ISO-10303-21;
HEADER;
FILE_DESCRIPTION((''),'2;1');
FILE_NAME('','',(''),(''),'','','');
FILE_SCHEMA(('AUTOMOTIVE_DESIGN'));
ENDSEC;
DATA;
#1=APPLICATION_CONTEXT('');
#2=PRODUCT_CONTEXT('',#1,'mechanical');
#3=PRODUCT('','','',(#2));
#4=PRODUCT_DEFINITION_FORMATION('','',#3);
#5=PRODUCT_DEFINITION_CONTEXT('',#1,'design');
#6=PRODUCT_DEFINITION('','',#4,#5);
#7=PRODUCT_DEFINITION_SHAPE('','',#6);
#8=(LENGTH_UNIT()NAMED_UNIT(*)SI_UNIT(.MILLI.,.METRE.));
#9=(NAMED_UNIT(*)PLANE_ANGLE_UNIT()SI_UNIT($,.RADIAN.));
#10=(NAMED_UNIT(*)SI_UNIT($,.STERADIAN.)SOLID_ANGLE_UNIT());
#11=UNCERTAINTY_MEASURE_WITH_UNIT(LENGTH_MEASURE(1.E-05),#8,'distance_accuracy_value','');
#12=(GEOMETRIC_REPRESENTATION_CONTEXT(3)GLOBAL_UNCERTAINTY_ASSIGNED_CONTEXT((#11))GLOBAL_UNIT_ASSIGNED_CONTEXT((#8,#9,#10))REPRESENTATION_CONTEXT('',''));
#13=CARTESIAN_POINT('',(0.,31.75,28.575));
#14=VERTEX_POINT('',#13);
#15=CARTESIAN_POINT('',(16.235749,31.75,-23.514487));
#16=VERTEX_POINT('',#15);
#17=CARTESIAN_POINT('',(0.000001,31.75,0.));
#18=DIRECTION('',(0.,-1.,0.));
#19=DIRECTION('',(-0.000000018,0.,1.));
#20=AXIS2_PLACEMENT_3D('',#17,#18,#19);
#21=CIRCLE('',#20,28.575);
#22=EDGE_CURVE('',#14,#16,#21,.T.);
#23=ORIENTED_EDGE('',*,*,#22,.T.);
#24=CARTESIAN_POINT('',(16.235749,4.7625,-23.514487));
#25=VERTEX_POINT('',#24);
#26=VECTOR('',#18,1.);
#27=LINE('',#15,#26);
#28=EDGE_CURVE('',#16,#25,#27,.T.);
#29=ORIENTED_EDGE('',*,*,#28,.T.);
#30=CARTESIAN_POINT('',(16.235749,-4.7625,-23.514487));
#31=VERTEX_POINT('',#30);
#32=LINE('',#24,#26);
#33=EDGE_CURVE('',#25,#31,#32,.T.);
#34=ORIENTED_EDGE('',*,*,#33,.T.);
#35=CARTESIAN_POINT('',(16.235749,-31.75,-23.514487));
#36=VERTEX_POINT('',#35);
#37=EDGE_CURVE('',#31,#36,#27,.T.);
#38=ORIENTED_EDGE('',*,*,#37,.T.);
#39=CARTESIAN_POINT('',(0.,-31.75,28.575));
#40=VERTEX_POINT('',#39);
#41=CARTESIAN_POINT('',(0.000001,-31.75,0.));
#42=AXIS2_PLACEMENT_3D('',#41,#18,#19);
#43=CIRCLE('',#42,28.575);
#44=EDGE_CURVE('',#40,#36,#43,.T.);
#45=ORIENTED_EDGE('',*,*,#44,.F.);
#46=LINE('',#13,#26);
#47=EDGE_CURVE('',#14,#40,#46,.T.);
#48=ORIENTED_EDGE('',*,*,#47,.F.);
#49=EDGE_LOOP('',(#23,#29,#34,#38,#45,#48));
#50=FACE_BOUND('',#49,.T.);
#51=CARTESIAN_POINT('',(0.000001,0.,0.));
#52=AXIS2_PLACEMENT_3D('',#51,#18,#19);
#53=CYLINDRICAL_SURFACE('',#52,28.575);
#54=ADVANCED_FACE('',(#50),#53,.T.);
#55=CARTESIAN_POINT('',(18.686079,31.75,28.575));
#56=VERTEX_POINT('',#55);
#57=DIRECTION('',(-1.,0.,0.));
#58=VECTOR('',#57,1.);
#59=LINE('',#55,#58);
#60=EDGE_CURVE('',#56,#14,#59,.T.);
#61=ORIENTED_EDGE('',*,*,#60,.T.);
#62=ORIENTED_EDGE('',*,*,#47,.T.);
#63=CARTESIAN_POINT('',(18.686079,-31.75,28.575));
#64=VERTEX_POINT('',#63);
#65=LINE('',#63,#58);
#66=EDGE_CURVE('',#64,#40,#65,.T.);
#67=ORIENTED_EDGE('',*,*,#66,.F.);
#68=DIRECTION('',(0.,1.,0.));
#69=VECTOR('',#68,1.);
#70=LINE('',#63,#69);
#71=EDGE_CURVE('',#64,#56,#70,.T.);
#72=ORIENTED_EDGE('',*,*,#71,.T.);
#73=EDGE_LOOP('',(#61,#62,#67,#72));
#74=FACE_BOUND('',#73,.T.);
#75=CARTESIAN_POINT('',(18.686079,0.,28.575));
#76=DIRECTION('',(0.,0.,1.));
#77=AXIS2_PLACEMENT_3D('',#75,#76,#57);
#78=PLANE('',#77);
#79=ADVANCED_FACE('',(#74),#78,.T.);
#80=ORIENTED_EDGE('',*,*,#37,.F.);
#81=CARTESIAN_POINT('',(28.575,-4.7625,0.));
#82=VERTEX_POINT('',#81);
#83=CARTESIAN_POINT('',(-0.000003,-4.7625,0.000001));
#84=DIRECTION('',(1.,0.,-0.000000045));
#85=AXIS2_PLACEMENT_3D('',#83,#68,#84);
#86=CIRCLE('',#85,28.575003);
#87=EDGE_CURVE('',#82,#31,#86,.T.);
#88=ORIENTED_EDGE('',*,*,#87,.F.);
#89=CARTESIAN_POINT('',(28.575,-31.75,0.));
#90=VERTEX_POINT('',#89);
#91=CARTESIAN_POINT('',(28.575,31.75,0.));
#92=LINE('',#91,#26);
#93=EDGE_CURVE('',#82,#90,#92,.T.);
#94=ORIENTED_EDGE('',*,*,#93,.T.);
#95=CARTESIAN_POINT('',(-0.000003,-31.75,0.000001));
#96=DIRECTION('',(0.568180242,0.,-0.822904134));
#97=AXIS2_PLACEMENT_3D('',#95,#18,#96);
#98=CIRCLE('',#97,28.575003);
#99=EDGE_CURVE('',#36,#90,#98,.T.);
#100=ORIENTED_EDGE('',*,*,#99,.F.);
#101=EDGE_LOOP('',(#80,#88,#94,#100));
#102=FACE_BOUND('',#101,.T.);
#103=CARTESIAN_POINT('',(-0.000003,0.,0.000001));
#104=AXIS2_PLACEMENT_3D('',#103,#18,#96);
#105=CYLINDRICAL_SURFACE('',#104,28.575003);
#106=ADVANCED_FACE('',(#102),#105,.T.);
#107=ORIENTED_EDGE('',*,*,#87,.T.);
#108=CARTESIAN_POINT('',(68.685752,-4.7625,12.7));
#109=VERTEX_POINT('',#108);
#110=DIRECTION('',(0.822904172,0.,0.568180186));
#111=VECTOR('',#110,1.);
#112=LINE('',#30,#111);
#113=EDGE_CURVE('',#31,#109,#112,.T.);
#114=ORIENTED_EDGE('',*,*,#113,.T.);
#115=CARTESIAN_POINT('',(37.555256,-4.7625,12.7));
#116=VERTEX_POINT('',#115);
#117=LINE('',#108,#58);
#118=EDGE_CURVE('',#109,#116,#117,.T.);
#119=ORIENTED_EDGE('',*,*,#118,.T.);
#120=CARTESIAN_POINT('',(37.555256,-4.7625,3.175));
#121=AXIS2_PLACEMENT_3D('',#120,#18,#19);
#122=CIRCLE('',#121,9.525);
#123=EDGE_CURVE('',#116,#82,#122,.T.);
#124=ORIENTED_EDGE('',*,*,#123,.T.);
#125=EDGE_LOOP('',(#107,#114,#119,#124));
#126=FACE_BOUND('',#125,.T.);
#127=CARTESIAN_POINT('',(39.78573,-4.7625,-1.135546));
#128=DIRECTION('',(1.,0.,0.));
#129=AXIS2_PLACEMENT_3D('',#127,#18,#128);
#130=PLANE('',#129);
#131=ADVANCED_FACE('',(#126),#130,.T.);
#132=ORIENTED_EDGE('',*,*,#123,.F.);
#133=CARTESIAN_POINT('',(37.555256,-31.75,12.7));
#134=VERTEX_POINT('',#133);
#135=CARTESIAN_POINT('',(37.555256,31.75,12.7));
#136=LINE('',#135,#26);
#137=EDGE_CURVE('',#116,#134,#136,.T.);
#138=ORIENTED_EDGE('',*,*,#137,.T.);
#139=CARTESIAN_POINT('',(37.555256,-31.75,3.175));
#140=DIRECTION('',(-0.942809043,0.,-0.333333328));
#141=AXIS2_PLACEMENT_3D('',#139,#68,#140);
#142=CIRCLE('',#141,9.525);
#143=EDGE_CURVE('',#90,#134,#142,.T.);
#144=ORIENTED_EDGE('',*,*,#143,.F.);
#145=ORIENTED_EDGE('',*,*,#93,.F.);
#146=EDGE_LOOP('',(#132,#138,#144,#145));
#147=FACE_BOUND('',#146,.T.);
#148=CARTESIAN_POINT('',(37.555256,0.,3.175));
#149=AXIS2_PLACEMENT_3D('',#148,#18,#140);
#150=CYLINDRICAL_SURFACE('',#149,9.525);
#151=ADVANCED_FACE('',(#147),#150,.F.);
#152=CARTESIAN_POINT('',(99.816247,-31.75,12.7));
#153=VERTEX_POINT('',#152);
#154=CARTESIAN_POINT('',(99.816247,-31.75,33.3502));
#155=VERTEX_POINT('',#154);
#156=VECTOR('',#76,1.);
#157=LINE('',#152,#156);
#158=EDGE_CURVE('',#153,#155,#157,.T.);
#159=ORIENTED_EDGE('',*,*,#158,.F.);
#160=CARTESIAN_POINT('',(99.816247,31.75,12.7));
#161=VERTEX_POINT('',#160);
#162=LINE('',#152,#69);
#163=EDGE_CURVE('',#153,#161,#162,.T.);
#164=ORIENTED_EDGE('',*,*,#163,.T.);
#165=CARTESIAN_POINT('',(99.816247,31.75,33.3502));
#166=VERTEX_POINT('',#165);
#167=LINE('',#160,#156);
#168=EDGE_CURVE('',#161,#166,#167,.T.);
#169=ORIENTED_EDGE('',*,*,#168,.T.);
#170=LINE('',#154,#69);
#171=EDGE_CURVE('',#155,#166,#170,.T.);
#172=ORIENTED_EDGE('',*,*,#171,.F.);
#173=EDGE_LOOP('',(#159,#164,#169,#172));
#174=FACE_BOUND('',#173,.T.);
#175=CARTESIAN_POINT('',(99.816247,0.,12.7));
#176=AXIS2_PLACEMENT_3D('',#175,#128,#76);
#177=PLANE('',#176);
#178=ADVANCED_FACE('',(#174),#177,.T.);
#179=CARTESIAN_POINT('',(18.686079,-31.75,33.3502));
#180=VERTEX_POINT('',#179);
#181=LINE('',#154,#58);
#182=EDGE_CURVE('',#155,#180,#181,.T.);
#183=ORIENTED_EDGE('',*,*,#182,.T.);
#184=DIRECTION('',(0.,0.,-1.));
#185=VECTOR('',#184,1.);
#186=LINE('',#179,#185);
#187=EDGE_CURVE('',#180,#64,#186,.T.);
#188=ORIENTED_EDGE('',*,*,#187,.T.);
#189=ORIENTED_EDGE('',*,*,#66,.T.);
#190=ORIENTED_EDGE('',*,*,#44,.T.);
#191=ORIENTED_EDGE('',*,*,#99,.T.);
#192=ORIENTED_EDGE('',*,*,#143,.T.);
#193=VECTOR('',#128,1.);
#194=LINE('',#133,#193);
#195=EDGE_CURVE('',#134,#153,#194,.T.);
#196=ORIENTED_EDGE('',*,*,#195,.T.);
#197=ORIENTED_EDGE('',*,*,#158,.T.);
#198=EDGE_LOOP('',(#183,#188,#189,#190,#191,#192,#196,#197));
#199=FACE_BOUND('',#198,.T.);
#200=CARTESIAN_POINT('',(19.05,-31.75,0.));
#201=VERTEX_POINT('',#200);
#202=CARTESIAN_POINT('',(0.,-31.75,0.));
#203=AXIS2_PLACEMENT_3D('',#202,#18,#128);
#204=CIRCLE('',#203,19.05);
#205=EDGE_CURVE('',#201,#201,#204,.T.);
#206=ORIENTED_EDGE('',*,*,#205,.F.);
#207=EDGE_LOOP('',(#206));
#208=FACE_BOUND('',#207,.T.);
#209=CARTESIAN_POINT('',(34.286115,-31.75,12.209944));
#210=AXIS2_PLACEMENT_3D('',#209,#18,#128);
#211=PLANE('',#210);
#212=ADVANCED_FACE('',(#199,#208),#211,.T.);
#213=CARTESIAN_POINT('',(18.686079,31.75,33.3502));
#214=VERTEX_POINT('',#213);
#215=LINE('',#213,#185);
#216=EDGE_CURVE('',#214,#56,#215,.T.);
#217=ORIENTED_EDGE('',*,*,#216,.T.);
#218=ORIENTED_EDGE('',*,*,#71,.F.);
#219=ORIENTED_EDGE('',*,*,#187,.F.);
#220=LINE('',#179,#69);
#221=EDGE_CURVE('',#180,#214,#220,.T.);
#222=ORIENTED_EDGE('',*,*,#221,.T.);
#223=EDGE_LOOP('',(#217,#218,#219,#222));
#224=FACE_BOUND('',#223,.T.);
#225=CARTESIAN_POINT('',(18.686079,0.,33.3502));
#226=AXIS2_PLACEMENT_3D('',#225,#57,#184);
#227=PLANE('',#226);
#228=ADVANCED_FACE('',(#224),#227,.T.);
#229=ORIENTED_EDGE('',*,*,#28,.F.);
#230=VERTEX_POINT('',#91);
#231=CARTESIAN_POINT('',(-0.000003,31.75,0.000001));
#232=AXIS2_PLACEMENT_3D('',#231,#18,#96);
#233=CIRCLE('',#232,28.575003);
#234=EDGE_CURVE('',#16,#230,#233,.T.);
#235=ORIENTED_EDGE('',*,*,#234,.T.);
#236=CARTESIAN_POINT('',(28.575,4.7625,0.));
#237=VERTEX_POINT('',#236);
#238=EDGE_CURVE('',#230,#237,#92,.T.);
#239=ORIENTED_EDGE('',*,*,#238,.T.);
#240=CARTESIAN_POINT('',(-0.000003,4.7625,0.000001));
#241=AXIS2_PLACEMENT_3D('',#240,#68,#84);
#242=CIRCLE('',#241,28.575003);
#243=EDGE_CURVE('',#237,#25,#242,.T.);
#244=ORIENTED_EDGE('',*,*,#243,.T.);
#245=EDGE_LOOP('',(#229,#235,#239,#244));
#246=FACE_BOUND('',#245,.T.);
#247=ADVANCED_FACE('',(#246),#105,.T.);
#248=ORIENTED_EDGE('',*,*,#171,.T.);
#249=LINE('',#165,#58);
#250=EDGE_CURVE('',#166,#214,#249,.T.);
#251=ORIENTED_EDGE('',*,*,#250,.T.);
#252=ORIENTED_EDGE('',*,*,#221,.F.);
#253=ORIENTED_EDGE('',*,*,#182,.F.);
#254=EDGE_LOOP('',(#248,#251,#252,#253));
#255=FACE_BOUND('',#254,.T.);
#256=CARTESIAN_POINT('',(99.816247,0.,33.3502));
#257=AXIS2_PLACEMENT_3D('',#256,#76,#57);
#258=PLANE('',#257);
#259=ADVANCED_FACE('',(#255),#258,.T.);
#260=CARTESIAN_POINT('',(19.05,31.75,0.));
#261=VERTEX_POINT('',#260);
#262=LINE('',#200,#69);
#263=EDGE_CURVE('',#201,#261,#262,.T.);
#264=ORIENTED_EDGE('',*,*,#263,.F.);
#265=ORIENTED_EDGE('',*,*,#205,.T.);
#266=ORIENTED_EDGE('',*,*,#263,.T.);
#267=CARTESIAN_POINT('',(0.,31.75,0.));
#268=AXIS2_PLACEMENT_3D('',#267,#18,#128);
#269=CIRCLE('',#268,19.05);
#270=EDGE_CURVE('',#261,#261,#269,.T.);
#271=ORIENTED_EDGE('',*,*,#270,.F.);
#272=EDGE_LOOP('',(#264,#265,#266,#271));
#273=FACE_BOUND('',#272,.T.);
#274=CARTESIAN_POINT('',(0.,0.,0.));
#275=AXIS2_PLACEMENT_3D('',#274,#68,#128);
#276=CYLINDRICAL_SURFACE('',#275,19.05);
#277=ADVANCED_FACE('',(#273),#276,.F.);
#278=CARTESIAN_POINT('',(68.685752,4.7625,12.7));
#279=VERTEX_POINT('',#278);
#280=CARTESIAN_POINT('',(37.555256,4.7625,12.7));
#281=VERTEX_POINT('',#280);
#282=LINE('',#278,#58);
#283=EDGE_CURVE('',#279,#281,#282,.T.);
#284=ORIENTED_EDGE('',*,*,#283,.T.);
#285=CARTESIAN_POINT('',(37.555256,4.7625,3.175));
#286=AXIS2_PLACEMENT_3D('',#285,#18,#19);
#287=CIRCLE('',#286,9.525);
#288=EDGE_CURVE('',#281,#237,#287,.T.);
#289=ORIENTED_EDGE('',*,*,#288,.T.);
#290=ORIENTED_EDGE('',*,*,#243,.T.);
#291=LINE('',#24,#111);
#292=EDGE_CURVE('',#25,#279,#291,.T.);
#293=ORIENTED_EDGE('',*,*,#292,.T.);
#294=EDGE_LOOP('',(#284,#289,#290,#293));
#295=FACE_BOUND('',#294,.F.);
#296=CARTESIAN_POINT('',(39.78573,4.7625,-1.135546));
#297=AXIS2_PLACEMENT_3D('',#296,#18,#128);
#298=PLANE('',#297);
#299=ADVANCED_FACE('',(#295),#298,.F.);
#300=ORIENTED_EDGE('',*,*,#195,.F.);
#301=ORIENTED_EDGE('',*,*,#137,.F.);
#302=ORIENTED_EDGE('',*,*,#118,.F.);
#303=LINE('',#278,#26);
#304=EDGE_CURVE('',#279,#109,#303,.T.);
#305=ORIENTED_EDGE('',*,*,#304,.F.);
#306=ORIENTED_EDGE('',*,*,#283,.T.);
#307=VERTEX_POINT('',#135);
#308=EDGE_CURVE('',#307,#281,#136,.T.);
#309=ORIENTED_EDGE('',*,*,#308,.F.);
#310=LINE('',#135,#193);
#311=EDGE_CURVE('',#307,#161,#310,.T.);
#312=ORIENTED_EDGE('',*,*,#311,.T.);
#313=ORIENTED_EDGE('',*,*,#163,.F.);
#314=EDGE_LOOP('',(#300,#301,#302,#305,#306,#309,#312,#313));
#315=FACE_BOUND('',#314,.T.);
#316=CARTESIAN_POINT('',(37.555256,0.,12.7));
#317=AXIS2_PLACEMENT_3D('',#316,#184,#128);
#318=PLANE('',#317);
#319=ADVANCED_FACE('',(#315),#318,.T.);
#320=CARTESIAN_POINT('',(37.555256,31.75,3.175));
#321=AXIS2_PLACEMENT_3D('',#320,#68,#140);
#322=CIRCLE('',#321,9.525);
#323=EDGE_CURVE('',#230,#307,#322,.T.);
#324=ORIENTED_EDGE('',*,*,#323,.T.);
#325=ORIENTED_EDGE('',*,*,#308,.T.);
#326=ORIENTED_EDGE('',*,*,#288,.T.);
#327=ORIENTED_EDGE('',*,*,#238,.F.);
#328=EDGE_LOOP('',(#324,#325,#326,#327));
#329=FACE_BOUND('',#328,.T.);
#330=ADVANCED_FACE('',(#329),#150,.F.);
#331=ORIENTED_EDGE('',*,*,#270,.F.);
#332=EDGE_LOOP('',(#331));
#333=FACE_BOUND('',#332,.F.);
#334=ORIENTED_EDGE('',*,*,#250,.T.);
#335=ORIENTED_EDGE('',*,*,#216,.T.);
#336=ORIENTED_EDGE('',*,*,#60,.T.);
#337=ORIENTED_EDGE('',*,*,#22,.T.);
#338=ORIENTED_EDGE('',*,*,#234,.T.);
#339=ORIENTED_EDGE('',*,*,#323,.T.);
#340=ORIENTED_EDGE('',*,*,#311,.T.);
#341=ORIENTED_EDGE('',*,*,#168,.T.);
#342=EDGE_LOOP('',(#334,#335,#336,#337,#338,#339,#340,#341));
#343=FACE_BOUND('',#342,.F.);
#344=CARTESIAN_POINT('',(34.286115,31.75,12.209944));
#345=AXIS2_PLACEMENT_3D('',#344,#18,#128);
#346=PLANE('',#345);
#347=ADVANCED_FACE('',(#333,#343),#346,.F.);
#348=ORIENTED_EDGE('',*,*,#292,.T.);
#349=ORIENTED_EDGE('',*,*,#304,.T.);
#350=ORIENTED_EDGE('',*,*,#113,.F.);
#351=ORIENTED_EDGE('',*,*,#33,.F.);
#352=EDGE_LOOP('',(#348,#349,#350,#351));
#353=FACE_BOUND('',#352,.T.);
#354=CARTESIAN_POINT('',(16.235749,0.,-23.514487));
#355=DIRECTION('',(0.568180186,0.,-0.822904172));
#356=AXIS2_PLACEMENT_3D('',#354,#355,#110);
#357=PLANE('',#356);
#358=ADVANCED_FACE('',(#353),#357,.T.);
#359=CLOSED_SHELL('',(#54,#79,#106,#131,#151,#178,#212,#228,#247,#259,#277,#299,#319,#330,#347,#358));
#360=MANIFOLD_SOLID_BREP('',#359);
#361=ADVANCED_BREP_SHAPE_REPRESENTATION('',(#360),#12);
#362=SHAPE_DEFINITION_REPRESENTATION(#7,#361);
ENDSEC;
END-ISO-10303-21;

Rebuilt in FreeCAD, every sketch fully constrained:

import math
import FreeCAD as App
import Part
import Sketcher
Q = App.Units.Quantity

doc = App.newDocument("Part")
body = doc.addObject("PartDesign::Body", "Body")

sketch1 = doc.addObject("Sketcher::SketchObject", "Sketch")
body.addObject(sketch1)
sketch1.AttachmentSupport = (doc.XZ_Plane, [""])
sketch1.MapMode = "FlatFace"
sketch1.addGeometry([
    Part.LineSegment(App.Vector(18.7, 28.6, 0), App.Vector(0, 28.6, 0)),
    Part.ArcOfCircle(Part.Circle(App.Vector(0, 0, 0), App.Vector(0, 0, 1), 28.6), math.radians(90), math.radians(305)),
    Part.ArcOfCircle(Part.Circle(App.Vector(0, 0, 0), App.Vector(0, 0, 1), 28.6), math.radians(-55), math.radians(0)),
    Part.ArcOfCircle(Part.Circle(App.Vector(37.6, 3.2, 0), App.Vector(0, 0, 1), 9.5), math.radians(90), math.radians(199)),
    Part.LineSegment(App.Vector(37.6, 12.7, 0), App.Vector(99.8, 12.7, 0)),
    Part.LineSegment(App.Vector(99.8, 12.7, 0), App.Vector(99.8, 33.4, 0)),
    Part.LineSegment(App.Vector(99.8, 33.4, 0), App.Vector(18.7, 33.4, 0)),
    Part.LineSegment(App.Vector(18.7, 33.4, 0), App.Vector(18.7, 28.6, 0)),
    Part.Circle(App.Vector(0, 0, 0), App.Vector(0, 0, 1), 19.1),
], False)
sketch1.addConstraint([
    Sketcher.Constraint("Tangent", 0, 2, 1, 1),
    Sketcher.Constraint("Tangent", 1, 2, 2, 1),
    Sketcher.Constraint("Coincident", 2, 2, 3, 2),
    Sketcher.Constraint("Tangent", 3, 1, 4, 1),
    Sketcher.Constraint("Coincident", 4, 2, 5, 1),
    Sketcher.Constraint("Coincident", 5, 2, 6, 1),
    Sketcher.Constraint("Coincident", 6, 2, 7, 1),
    Sketcher.Constraint("Coincident", 7, 2, 0, 1),
    Sketcher.Constraint("Horizontal", 0),
    Sketcher.Constraint("Horizontal", 4),
    Sketcher.Constraint("Vertical", 5),
    Sketcher.Constraint("Horizontal", 6),
    Sketcher.Constraint("Vertical", 7),
    Sketcher.Constraint("Coincident", 1, 3, -1, 1),
    Sketcher.Constraint("Coincident", 8, 3, -1, 1),
    Sketcher.Constraint("PointOnObject", 2, 3, -1),
    Sketcher.Constraint("PointOnObject", 2, 2, -1),
    Sketcher.Constraint("Diameter", 8, Q("1.5 in")),
    Sketcher.Constraint("Radius", 1, Q("1.125 in")),
    Sketcher.Constraint("Radius", 3, Q("0.375 in")),
    Sketcher.Constraint("DistanceY", 3, 3, 0, 2, Q("1 in")),
    Sketcher.Constraint("DistanceY", 5, 1, 5, 2, Q("0.813 in")),
    Sketcher.Constraint("DistanceX", 0, 2, 0, 1, Q("18.686079 mm")),
    Sketcher.Constraint("DistanceX", 4, 1, 4, 2, Q("62.260991 mm")),
    Sketcher.Constraint("DistanceX", 1, 2, 4, 2, Q("83.580498 mm")),
])
pad1 = doc.addObject("PartDesign::Pad", "Pad")
body.addObject(pad1)
pad1.Profile = sketch1
pad1.Length = Q("2.5 in")
pad1.Midplane = True

sketch2 = doc.addObject("Sketcher::SketchObject", "Sketch001")
body.addObject(sketch2)
sketch2.AttachmentSupport = (doc.XZ_Plane, [""])
sketch2.MapMode = "FlatFace"
sketch2.addGeometry([
    Part.ArcOfCircle(Part.Circle(App.Vector(0, 0, 0), App.Vector(0, 0, 1), 29), math.radians(-55), math.radians(0)),
    Part.LineSegment(App.Vector(16, -24, 0), App.Vector(69, 13, 0)),
    Part.LineSegment(App.Vector(69, 13, 0), App.Vector(38, 13, 0)),
    Part.ArcOfCircle(Part.Circle(App.Vector(38, 3, 0), App.Vector(0, 0, 1), 10), math.radians(90), math.radians(199)),
], False)
sketch2.addConstraint([
    Sketcher.Constraint("Tangent", 0, 1, 1, 1),
    Sketcher.Constraint("Coincident", 1, 2, 2, 1),
    Sketcher.Constraint("Tangent", 2, 2, 3, 1),
    Sketcher.Constraint("Coincident", 3, 2, 0, 2),
    Sketcher.Constraint("Horizontal", 2),
    Sketcher.Constraint("Coincident", 0, 3, -1, 1),
    Sketcher.Constraint("PointOnObject", 3, 2, -1),
    Sketcher.Constraint("Radius", 0, Q("1.1250001 in")),
    Sketcher.Constraint("Radius", 3, Q("0.375 in")),
    Sketcher.Constraint("DistanceY", -1, 1, 1, 2, Q("0.5 in")),
    Sketcher.Constraint("Distance", 1, Q("63.73768 mm")),
])
pad2 = doc.addObject("PartDesign::Pad", "Pad001")
body.addObject(pad2)
pad2.Profile = sketch2
pad2.Length = Q("0.375 in")
pad2.Midplane = True

doc.recompute()
